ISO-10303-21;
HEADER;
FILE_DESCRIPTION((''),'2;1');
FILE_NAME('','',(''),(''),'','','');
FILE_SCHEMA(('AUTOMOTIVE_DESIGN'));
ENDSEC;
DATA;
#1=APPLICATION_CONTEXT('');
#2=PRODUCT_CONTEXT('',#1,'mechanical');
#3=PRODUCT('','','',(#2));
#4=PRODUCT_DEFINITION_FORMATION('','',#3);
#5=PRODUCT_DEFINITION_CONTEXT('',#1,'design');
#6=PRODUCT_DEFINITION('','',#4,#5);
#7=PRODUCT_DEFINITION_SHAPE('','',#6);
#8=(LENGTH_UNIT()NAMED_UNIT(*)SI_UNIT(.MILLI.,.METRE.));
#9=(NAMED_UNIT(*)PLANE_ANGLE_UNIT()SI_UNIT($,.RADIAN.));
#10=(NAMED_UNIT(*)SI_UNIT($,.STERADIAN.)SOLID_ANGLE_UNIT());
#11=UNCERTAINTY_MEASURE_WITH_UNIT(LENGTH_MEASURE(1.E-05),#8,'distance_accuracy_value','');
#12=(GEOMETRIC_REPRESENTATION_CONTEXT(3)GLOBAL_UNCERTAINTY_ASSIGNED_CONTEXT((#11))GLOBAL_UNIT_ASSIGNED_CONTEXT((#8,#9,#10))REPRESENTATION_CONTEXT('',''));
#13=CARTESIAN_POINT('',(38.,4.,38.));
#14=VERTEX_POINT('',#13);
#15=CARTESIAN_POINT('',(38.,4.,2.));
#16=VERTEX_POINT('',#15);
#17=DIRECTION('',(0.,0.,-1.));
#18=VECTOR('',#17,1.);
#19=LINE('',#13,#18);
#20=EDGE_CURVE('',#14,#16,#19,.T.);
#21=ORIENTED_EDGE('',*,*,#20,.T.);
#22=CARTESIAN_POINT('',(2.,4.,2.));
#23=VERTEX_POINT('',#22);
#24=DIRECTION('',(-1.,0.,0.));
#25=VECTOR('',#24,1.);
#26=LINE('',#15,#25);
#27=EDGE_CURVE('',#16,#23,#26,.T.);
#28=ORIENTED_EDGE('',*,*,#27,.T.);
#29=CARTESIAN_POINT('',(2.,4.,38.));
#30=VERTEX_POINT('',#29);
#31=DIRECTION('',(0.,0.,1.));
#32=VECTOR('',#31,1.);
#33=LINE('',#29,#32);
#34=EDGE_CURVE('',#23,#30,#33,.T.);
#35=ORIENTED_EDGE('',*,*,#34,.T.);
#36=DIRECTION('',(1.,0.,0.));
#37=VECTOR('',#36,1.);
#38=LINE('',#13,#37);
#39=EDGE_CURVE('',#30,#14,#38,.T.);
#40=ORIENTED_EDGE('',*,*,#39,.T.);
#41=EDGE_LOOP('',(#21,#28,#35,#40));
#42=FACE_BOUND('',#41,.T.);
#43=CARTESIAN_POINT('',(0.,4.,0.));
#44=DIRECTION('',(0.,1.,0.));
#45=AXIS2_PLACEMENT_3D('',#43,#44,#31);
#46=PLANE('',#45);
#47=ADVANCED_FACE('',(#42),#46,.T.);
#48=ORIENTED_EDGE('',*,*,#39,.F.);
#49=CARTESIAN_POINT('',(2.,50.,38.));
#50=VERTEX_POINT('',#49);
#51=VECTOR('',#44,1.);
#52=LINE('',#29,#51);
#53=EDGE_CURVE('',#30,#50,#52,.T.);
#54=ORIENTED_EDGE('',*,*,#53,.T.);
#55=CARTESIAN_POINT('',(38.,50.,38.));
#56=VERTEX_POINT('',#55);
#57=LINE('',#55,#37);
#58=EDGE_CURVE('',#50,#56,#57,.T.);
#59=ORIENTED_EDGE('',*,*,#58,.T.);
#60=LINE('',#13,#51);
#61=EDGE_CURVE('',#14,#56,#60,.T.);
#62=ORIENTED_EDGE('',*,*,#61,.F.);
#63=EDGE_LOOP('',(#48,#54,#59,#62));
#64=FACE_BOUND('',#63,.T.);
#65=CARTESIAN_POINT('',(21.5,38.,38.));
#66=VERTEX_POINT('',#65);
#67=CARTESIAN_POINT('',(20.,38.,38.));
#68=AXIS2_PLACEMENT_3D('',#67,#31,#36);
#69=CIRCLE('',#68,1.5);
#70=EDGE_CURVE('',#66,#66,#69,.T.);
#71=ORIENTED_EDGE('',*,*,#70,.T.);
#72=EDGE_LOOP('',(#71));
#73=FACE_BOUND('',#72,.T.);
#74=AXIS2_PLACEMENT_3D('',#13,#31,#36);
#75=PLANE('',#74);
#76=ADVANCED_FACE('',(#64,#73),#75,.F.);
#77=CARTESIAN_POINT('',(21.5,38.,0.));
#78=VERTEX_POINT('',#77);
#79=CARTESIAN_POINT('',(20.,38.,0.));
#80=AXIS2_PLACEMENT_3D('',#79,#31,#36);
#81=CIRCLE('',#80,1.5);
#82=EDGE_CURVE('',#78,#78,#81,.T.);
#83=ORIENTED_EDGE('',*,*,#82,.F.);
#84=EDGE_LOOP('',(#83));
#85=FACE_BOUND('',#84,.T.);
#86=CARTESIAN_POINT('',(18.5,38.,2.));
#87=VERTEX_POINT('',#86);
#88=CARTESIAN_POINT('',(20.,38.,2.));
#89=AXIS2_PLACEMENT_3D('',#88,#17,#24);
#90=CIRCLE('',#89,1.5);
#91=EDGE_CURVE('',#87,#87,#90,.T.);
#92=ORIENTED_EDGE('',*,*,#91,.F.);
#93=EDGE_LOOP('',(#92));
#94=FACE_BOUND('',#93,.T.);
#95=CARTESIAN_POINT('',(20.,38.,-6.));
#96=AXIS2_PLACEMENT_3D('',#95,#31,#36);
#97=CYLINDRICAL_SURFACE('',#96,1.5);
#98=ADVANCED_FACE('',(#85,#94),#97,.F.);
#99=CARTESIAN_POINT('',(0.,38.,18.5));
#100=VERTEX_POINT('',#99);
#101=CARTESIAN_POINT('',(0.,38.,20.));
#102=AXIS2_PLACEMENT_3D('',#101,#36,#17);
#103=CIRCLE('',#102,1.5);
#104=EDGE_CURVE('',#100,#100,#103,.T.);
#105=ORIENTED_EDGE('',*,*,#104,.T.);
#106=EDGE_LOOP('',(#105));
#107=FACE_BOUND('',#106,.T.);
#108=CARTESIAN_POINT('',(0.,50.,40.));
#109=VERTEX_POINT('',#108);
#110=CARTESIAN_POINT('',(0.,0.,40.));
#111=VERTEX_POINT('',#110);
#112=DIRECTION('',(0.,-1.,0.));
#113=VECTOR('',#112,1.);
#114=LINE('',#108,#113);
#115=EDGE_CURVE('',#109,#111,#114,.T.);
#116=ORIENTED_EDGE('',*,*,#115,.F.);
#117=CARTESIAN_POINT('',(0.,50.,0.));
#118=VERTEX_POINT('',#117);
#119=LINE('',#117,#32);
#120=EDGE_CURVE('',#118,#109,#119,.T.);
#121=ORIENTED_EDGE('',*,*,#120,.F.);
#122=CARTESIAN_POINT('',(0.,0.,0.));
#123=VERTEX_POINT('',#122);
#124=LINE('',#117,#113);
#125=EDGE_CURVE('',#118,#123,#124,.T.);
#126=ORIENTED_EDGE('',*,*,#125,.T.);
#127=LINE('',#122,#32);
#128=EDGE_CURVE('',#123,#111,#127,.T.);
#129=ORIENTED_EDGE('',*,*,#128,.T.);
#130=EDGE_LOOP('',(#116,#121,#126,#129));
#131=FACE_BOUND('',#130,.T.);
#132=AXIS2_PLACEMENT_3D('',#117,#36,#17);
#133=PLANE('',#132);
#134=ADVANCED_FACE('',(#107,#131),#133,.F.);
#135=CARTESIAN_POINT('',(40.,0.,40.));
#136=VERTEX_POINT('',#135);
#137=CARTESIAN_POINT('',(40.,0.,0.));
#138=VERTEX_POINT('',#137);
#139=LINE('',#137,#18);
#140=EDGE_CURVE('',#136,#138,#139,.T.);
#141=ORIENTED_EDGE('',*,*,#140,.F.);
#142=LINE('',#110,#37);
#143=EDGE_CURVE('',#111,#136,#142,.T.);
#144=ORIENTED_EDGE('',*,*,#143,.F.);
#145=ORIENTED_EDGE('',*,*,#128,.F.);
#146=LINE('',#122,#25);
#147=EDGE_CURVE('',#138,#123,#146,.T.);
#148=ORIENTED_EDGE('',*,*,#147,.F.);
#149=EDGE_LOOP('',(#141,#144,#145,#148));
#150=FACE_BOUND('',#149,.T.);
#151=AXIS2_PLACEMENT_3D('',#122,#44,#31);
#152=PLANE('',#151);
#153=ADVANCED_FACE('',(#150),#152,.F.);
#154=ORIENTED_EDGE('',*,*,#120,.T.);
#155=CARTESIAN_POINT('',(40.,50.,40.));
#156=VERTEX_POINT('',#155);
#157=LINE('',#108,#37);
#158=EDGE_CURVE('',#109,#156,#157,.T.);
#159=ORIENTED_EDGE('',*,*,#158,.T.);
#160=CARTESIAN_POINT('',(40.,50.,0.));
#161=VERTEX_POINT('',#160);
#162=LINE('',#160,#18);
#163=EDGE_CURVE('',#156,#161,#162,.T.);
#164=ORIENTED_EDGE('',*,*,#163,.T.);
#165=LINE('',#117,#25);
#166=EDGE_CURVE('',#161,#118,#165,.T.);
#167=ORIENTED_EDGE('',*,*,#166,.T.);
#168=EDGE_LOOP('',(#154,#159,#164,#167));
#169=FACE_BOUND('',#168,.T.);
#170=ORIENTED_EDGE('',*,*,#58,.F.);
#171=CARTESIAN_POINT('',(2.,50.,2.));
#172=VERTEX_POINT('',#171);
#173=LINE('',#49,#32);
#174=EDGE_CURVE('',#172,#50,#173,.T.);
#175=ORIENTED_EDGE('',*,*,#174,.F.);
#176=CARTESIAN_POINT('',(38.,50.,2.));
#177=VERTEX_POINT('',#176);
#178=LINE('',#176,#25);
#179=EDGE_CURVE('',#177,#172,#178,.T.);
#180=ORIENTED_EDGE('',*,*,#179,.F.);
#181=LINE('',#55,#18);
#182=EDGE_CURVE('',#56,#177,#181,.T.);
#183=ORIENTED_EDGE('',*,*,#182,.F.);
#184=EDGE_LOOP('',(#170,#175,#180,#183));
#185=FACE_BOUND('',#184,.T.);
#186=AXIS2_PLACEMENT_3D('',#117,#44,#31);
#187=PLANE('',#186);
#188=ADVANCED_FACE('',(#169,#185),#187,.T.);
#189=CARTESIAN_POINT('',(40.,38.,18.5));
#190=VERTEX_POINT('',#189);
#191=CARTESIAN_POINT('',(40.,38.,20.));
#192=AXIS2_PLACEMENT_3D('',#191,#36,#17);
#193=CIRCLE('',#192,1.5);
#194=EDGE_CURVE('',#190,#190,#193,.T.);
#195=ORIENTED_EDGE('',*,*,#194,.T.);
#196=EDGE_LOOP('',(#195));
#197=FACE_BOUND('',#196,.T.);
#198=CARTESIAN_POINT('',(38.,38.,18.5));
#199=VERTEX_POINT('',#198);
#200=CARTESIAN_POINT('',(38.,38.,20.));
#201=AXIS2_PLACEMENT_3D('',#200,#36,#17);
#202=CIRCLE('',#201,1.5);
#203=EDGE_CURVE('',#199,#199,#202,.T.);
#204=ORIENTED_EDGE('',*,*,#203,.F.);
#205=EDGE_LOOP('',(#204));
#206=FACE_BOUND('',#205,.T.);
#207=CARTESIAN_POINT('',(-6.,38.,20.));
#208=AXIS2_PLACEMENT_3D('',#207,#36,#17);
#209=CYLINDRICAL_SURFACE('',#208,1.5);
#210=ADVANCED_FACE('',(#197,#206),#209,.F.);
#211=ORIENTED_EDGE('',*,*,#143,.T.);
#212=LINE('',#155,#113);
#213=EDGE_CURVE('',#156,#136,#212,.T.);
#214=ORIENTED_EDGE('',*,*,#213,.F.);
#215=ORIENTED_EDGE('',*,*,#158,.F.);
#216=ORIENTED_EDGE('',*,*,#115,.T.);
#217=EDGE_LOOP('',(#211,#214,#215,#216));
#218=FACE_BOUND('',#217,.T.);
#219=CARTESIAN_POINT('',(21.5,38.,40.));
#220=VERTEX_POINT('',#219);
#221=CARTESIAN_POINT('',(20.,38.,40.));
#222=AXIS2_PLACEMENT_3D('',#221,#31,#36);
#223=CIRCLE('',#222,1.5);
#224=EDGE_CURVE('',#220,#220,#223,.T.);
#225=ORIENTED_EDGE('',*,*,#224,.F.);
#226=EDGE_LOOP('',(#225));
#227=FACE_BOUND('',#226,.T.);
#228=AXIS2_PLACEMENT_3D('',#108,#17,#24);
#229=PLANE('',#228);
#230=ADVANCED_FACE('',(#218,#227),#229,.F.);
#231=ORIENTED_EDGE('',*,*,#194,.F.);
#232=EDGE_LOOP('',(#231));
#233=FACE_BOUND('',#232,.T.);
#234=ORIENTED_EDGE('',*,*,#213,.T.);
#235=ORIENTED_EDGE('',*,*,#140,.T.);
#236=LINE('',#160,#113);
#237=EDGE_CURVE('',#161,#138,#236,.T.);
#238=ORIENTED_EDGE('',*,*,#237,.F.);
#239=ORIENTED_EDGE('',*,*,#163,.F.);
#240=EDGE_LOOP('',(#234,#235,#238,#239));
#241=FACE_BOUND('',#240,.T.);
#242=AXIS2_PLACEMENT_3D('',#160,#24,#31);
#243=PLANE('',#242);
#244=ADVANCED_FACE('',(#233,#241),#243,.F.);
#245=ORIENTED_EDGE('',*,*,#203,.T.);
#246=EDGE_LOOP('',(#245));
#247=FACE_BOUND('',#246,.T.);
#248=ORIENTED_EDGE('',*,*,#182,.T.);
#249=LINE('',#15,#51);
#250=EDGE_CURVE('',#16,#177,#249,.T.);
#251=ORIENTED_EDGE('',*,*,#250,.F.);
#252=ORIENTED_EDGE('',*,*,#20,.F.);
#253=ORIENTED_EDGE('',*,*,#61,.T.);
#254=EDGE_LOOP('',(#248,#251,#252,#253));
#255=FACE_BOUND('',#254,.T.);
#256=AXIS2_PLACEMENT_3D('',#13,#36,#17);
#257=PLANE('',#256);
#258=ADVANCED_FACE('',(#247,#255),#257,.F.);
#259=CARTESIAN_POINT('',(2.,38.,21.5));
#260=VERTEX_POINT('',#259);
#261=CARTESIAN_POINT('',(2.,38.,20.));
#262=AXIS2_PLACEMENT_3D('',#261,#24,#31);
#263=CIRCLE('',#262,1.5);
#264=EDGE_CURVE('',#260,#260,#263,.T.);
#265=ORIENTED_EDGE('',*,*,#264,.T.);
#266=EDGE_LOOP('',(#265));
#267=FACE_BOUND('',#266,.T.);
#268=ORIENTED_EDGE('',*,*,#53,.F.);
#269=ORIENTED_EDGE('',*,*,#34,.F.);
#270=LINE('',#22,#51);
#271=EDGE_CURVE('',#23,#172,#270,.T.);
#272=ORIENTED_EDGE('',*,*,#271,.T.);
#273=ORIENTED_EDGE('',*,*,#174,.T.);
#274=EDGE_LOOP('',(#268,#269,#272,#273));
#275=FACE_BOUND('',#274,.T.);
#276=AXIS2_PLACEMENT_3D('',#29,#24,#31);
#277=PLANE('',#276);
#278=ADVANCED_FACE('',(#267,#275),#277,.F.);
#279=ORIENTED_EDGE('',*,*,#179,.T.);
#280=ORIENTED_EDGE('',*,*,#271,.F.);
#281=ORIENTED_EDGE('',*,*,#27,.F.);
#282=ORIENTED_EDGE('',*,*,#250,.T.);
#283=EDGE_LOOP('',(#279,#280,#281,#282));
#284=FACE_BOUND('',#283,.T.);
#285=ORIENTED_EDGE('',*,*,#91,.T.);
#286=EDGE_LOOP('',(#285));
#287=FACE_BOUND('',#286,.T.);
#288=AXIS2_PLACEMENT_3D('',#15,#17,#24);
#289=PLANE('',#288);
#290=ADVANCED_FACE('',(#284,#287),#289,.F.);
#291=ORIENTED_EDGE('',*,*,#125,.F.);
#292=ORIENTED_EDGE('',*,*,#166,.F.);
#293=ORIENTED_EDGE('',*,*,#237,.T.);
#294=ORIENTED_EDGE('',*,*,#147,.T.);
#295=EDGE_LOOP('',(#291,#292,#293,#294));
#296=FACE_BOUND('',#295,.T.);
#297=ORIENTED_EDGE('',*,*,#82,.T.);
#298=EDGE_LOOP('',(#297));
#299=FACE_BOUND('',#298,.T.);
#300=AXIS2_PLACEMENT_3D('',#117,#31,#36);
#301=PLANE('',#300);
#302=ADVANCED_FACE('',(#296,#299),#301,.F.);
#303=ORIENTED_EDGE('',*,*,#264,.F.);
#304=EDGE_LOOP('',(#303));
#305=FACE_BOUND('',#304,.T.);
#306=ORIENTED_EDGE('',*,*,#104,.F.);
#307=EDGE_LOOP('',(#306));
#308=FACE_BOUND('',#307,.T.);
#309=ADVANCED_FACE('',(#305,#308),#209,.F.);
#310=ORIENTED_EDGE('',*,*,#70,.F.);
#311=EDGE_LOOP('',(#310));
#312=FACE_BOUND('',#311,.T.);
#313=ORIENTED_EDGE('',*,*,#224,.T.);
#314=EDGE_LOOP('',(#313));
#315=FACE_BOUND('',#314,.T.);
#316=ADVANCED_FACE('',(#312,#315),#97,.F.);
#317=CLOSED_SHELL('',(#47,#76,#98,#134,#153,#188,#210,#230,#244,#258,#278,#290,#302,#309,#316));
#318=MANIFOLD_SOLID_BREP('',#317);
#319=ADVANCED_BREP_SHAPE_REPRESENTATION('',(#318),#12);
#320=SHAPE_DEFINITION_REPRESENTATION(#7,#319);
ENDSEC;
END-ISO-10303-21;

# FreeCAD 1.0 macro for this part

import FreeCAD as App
import Part
import Sketcher
Q = App.Units.Quantity

doc = App.newDocument("Part")
params = doc.addObject("Spreadsheet::Sheet", "Params")
for row, (alias, value) in enumerate([
    ("sketch1_width", "40 mm"),
    ("pad1_length", "50 mm"),
    ("sketch2_width", "36 mm"),
    ("pocket1_length", "46 mm"),
    ("sketch3_diameter", "3 mm"),
    ("pocket2_length", "46 mm"),
    ("sketch4_diameter", "3 mm"),
    ("pocket3_length", "46 mm"),
], start=1):
    params.set(f"A{row}", alias)
    params.set(f"B{row}", "=" + value)
    params.setAlias(f"B{row}", alias)

body = doc.addObject("PartDesign::Body", "Body")

sketch1 = doc.addObject("Sketcher::SketchObject", "Sketch")
body.addObject(sketch1)
sketch1.AttachmentSupport = (doc.XZ_Plane, [""])
sketch1.MapMode = "FlatFace"
sketch1.addGeometry([
    Part.LineSegment(App.Vector(0, 0, 0), App.Vector(0, 40, 0)),
    Part.LineSegment(App.Vector(0, 40, 0), App.Vector(40, 40, 0)),
    Part.LineSegment(App.Vector(40, 40, 0), App.Vector(40, 0, 0)),
    Part.LineSegment(App.Vector(40, 0, 0), App.Vector(0, 0, 0)),
], False)
sketch1.addConstraint([
    Sketcher.Constraint("Coincident", 0, 2, 1, 1),
    Sketcher.Constraint("Coincident", 1, 2, 2, 1),
    Sketcher.Constraint("Coincident", 2, 2, 3, 1),
    Sketcher.Constraint("Coincident", 3, 2, 0, 1),
    Sketcher.Constraint("Vertical", 0),
    Sketcher.Constraint("Horizontal", 1),
    Sketcher.Constraint("Vertical", 2),
    Sketcher.Constraint("Horizontal", 3),
    Sketcher.Constraint("Coincident", 3, 2, -1, 1),
    Sketcher.Constraint("Equal", 3, 0),
    Sketcher.Constraint("DistanceX", 1, 1, 1, 2, Q("40 mm")),
])
sketch1.setExpression("Constraints[10]", "Params.sketch1_width")
pad1 = doc.addObject("PartDesign::Pad", "Pad")
body.addObject(pad1)
pad1.Profile = sketch1
pad1.setExpression("Length", "Params.pad1_length")
pad1.Reversed = True

sketch2 = doc.addObject("Sketcher::SketchObject", "Sketch001")
body.addObject(sketch2)
sketch2.AttachmentSupport = (doc.XZ_Plane, [""])
sketch2.MapMode = "FlatFace"
sketch2.AttachmentOffset = App.Placement(App.Vector(0, 0, -50), App.Rotation())
sketch2.addGeometry([
    Part.LineSegment(App.Vector(2, 2, 0), App.Vector(2, 38, 0)),
    Part.LineSegment(App.Vector(2, 38, 0), App.Vector(38, 38, 0)),
    Part.LineSegment(App.Vector(38, 38, 0), App.Vector(38, 2, 0)),
    Part.LineSegment(App.Vector(38, 2, 0), App.Vector(2, 2, 0)),
], False)
sketch2.addConstraint([
    Sketcher.Constraint("Coincident", 0, 2, 1, 1),
    Sketcher.Constraint("Coincident", 1, 2, 2, 1),
    Sketcher.Constraint("Coincident", 2, 2, 3, 1),
    Sketcher.Constraint("Coincident", 3, 2, 0, 1),
    Sketcher.Constraint("Vertical", 0),
    Sketcher.Constraint("Horizontal", 1),
    Sketcher.Constraint("Vertical", 2),
    Sketcher.Constraint("Horizontal", 3),
    Sketcher.Constraint("Equal", 3, 0),
    Sketcher.Constraint("DistanceX", 1, 1, 1, 2, Q("36 mm")),
    Sketcher.Constraint("DistanceX", -1, 1, 0, 2, Q("2 mm")),
    Sketcher.Constraint("DistanceY", -1, 1, 0, 2, Q("38 mm")),
])
sketch2.setExpression("Constraints[9]", "Params.sketch2_width")
pocket1 = doc.addObject("PartDesign::Pocket", "Pocket")
body.addObject(pocket1)
pocket1.Profile = sketch2
pocket1.setExpression("Length", "Params.pocket1_length")
pocket1.Reversed = True

sketch3 = doc.addObject("Sketcher::SketchObject", "Sketch002")
body.addObject(sketch3)
sketch3.AttachmentSupport = (doc.XY_Plane, [""])
sketch3.MapMode = "FlatFace"
sketch3.AttachmentOffset = App.Placement(App.Vector(0, 0, 40), App.Rotation())
sketch3.addGeometry(Part.Circle(App.Vector(20, 38, 0), App.Vector(0, 0, 1), 1.5), False)
sketch3.addConstraint([
    Sketcher.Constraint("Diameter", 0, Q("3 mm")),
    Sketcher.Constraint("DistanceX", -1, 1, 0, 3, Q("20 mm")),
    Sketcher.Constraint("DistanceY", -1, 1, 0, 3, Q("38 mm")),
])
sketch3.setExpression("Constraints[0]", "Params.sketch3_diameter")
pocket2 = doc.addObject("PartDesign::Pocket", "Pocket001")
body.addObject(pocket2)
pocket2.Profile = sketch3
pocket2.setExpression("Length", "Params.pocket2_length")

sketch4 = doc.addObject("Sketcher::SketchObject", "Sketch003")
body.addObject(sketch4)
sketch4.AttachmentSupport = (doc.YZ_Plane, [""])
sketch4.MapMode = "FlatFace"
sketch4.AttachmentOffset = App.Placement(App.Vector(0, 0, 40), App.Rotation())
sketch4.addGeometry(Part.Circle(App.Vector(38, 20, 0), App.Vector(0, 0, 1), 1.5), False)
sketch4.addConstraint([
    Sketcher.Constraint("Diameter", 0, Q("3 mm")),
    Sketcher.Constraint("DistanceX", -1, 1, 0, 3, Q("38 mm")),
    Sketcher.Constraint("DistanceY", -1, 1, 0, 3, Q("20 mm")),
])
sketch4.setExpression("Constraints[0]", "Params.sketch4_diameter")
pocket3 = doc.addObject("PartDesign::Pocket", "Pocket002")
body.addObject(pocket3)
pocket3.Profile = sketch4
pocket3.setExpression("Length", "Params.pocket3_length")

doc.recompute()
